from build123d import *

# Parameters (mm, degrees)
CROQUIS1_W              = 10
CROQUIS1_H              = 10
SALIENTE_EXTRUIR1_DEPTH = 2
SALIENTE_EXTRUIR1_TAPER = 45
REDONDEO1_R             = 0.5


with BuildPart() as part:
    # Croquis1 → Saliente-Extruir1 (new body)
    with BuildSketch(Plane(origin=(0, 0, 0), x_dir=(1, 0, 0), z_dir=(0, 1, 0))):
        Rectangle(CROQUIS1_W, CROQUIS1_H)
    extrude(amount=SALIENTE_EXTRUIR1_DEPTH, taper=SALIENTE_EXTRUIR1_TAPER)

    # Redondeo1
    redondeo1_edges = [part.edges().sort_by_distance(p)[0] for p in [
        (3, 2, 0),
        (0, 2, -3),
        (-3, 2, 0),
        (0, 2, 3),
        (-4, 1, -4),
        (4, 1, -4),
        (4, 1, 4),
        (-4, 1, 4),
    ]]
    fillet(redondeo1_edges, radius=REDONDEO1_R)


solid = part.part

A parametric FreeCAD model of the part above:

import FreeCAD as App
import Part
import Sketcher
Q = App.Units.Quantity


def edges_at(feature, points):
    """Names of the edges that pass closest to the given points."""
    edges = feature.Shape.Edges
    near = lambda p: min(range(len(edges)), key=lambda i: edges[i].distToShape(Part.Vertex(*p))[0])
    return sorted({f"Edge{near(p) + 1}" for p in points})

doc = App.newDocument("Part")
body = doc.addObject("PartDesign::Body", "Body")

# Sketch on XZ plane
sketch1 = body.newObject("Sketcher::SketchObject", "Sketch")
sketch1.AttachmentSupport = (doc.getObject("XZ_Plane"), [""])
sketch1.MapMode = "FlatFace"
sketch1.addGeometry(Part.LineSegment(App.Vector(-5, -5, 0), App.Vector(-5, 5, 0)), False)
sketch1.addGeometry(Part.LineSegment(App.Vector(-5, 5, 0), App.Vector(5, 5, 0)), False)
sketch1.addGeometry(Part.LineSegment(App.Vector(5, 5, 0), App.Vector(5, -5, 0)), False)
sketch1.addGeometry(Part.LineSegment(App.Vector(5, -5, 0), App.Vector(-5, -5, 0)), False)
sketch1.addConstraint(Sketcher.Constraint("Coincident", 0, 2, 1, 1))
sketch1.addConstraint(Sketcher.Constraint("Coincident", 1, 2, 2, 1))
sketch1.addConstraint(Sketcher.Constraint("Coincident", 2, 2, 3, 1))
sketch1.addConstraint(Sketcher.Constraint("Coincident", 3, 2, 0, 1))
sketch1.addConstraint(Sketcher.Constraint("Vertical", 0))
sketch1.addConstraint(Sketcher.Constraint("Horizontal", 1))
sketch1.addConstraint(Sketcher.Constraint("Vertical", 2))
sketch1.addConstraint(Sketcher.Constraint("Horizontal", 3))
sketch1.addConstraint(Sketcher.Constraint("Symmetric", 0, 2, 2, 2, -1, 1))
sketch1.addConstraint(Sketcher.Constraint("Equal", 3, 0))
sketch1.addConstraint(Sketcher.Constraint("DistanceX", 1, 1, 1, 2, Q("10 mm")))
pad1 = body.newObject("PartDesign::Pad", "Pad")
pad1.Profile = sketch1
pad1.Length = 2
pad1.Reversed = True
pad1.TaperAngle = -45
doc.recompute()

fillet = body.newObject("PartDesign::Fillet", "Fillet")
fillet.Base = (pad1, edges_at(pad1, [
    (3, 2, 0),
    (0, 2, -3),
    (-3, 2, 0),
    (0, 2, 3),
    (-4, 1, -4),
    (4, 1, -4),
    (4, 1, 4),
    (-4, 1, 4),
]))
fillet.Radius = 0.5

doc.recompute()
